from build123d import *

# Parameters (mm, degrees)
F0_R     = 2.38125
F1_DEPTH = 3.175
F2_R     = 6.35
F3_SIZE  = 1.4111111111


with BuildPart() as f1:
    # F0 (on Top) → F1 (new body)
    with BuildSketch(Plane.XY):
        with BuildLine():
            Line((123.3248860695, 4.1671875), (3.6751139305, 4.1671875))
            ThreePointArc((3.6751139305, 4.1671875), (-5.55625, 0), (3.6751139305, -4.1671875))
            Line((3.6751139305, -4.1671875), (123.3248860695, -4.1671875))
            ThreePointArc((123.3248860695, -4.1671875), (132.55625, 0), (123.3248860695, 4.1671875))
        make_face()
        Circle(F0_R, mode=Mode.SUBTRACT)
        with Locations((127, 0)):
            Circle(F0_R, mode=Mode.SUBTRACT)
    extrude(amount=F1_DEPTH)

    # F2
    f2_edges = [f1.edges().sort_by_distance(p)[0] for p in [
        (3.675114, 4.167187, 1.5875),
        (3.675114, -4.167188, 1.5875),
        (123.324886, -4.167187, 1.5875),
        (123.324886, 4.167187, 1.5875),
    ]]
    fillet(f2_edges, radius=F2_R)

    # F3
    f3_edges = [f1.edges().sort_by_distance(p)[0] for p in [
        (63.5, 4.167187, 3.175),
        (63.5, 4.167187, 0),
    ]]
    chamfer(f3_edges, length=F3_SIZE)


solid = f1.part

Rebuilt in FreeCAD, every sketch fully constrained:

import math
import FreeCAD as App
import Part
import Sketcher
from FreeCAD import Vector
Q = App.Units.Quantity


def edges_at(feature, points):
    """Names of the edges that pass closest to the given points."""
    edges = feature.Shape.Edges
    near = lambda p: min(range(len(edges)), key=lambda i: edges[i].distToShape(Part.Vertex(*p))[0])
    return sorted({f"Edge{near(p) + 1}" for p in points})

doc = App.newDocument("Part")
body = doc.addObject("PartDesign::Body", "Body")

# Sketch on XY plane
sketch1 = doc.addObject("Sketcher::SketchObject", "Sketch")
body.addObject(sketch1)
sketch1.AttachmentSupport = (doc.XY_Plane, [""])
sketch1.MapMode = "FlatFace"
sketch1.addGeometry(Part.LineSegment(Vector(123.3, 4.2, 0), Vector(3.7, 4.2, 0)), False)
sketch1.addGeometry(Part.ArcOfCircle(Part.Circle(Vector(0, 0, 0), Vector(0, 0, 1), 5.6), math.radians(49), math.radians(311)), False)
sketch1.addGeometry(Part.LineSegment(Vector(3.7, -4.2, 0), Vector(123.3, -4.2, 0)), False)
sketch1.addGeometry(Part.ArcOfCircle(Part.Circle(Vector(127, 0, 0), Vector(0, 0, 1), 5.6), math.radians(-131), math.radians(131)), False)
sketch1.addGeometry(Part.Circle(Vector(0, 0, 0), Vector(0, 0, 1), 2.4), False)
sketch1.addGeometry(Part.Circle(Vector(127, 0, 0), Vector(0, 0, 1), 2.4), False)
sketch1.addConstraint(Sketcher.Constraint("Coincident", 0, 2, 1, 1))
sketch1.addConstraint(Sketcher.Constraint("Coincident", 1, 2, 2, 1))
sketch1.addConstraint(Sketcher.Constraint("Coincident", 2, 2, 3, 1))
sketch1.addConstraint(Sketcher.Constraint("Coincident", 3, 2, 0, 1))
sketch1.addConstraint(Sketcher.Constraint("Horizontal", 0))
sketch1.addConstraint(Sketcher.Constraint("Horizontal", 2))
sketch1.addConstraint(Sketcher.Constraint("Coincident", 1, 3, -1, 1))
sketch1.addConstraint(Sketcher.Constraint("Coincident", 4, 3, -1, 1))
sketch1.addConstraint(Sketcher.Constraint("Coincident", 5, 3, 3, 3))
sketch1.addConstraint(Sketcher.Constraint("Equal", 1, 3))
sketch1.addConstraint(Sketcher.Constraint("Equal", 4, 5))
sketch1.addConstraint(Sketcher.Constraint("Symmetric", 2, 2, 3, 2, -1))
sketch1.addConstraint(Sketcher.Constraint("Diameter", 4, Q("0.1875 in")))
sketch1.addConstraint(Sketcher.Constraint("DistanceX", -1, 1, 3, 3, Q("5 in")))
sketch1.addConstraint(Sketcher.Constraint("Radius", 1, Q("0.21875 in")))
sketch1.addConstraint(Sketcher.Constraint("DistanceY", 1, 2, 0, 2, Q("0.328125 in")))
pad1 = doc.addObject("PartDesign::Pad", "Pad")
body.addObject(pad1)
pad1.Profile = sketch1
pad1.Length = Q("0.125 in")
doc.recompute()

fillet = doc.addObject("PartDesign::Fillet", "Fillet")
body.addObject(fillet)
fillet.Base = (pad1, edges_at(pad1, [
    (3.675, 4.167, 1.587),
    (3.675, -4.167, 1.587),
    (123.325, -4.167, 1.587),
    (123.325, 4.167, 1.587),
]))
fillet.Radius = Q("0.25 in")
doc.recompute()

chamfer = doc.addObject("PartDesign::Chamfer", "Chamfer")
body.addObject(chamfer)
chamfer.Base = (fillet, edges_at(fillet, [(63.5, 4.167, 3.175), (63.5, 4.167, 0)]))
chamfer.Size = 1.411111

doc.recompute()
